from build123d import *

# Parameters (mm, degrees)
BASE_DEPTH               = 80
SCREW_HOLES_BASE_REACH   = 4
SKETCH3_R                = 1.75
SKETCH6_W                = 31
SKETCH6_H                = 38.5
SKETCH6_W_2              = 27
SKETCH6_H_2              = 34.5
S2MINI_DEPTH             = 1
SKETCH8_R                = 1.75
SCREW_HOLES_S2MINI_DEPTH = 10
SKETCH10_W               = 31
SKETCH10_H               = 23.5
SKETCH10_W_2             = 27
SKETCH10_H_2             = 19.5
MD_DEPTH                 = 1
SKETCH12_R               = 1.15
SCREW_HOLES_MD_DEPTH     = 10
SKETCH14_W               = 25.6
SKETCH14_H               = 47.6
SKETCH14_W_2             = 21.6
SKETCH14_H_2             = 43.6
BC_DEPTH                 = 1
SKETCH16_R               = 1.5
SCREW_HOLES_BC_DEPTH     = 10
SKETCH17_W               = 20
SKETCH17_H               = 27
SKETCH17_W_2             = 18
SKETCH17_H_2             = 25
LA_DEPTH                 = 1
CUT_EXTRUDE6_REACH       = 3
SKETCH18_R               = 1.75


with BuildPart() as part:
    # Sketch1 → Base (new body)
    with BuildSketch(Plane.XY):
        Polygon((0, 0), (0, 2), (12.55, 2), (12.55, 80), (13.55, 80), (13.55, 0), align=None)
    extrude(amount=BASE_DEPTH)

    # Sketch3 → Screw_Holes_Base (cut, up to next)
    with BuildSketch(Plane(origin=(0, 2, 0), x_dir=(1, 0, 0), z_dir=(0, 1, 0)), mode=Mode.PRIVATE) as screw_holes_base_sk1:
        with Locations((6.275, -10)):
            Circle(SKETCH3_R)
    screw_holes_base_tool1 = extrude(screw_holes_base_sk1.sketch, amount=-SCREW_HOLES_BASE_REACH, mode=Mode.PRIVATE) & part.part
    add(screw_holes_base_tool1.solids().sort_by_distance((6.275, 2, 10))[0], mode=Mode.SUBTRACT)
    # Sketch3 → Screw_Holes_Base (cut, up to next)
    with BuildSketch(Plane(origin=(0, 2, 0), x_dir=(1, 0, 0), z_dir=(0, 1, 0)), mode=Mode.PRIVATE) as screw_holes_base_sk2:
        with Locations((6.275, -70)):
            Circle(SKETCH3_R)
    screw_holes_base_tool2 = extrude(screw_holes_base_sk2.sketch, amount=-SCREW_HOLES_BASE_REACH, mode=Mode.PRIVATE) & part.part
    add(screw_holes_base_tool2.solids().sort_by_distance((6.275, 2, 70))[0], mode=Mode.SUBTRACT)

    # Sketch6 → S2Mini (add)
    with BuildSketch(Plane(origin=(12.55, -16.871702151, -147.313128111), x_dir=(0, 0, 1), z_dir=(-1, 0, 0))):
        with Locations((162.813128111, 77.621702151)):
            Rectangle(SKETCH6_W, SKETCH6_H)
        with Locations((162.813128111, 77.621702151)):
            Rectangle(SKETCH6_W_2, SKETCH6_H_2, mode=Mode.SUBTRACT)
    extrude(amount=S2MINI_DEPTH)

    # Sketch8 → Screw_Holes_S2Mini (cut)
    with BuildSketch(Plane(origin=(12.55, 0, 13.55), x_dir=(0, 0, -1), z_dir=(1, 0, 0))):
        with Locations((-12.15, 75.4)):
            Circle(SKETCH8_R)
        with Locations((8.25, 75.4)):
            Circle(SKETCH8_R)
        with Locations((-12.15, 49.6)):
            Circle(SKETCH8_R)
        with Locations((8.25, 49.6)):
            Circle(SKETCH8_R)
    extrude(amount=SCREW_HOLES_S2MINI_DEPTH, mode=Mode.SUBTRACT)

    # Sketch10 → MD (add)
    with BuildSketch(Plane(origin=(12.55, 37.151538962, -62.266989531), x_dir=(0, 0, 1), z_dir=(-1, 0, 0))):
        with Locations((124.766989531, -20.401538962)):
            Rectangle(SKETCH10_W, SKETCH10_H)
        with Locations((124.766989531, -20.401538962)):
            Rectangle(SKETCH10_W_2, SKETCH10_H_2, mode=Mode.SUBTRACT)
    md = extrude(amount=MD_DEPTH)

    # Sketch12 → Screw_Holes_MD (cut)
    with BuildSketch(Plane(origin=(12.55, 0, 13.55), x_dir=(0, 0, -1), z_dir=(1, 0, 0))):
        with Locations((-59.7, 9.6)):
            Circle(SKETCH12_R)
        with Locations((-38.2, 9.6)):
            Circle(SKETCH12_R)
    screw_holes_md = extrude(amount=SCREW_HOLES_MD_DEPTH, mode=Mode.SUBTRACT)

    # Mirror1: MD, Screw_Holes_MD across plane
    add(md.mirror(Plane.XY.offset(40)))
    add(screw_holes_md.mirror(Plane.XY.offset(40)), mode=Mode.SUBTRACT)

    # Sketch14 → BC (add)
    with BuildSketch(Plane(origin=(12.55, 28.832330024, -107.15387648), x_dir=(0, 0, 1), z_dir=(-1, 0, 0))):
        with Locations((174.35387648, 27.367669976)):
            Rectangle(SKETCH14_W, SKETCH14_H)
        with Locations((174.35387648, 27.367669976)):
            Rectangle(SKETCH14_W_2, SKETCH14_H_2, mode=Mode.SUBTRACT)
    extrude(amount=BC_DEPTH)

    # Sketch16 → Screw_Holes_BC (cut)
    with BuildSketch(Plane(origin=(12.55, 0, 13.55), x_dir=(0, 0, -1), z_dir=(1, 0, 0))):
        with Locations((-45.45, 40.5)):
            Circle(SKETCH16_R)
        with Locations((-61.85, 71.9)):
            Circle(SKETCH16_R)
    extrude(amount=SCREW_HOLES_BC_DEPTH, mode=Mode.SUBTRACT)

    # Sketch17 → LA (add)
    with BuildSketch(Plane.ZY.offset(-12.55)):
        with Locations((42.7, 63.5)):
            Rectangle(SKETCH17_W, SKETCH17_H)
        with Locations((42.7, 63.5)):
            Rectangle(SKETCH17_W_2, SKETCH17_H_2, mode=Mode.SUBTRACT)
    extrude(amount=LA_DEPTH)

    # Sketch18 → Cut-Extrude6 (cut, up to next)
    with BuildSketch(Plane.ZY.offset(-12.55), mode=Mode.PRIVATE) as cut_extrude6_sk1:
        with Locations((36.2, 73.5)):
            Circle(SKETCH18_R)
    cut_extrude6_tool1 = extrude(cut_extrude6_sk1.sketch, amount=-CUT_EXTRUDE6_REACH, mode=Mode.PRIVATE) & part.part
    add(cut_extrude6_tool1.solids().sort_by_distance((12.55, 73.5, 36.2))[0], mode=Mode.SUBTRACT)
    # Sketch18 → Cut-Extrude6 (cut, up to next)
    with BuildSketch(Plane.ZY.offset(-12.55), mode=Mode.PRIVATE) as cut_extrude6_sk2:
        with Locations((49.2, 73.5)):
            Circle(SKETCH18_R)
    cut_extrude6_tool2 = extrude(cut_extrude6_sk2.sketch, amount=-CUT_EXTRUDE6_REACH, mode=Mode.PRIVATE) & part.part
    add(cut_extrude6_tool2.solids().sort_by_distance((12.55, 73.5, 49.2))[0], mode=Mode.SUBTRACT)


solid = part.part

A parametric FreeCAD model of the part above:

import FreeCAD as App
import Part
import Sketcher
from FreeCAD import Vector
Q = App.Units.Quantity

doc = App.newDocument("Part")
body = doc.addObject("PartDesign::Body", "Body")

sketch1 = body.newObject("Sketcher::SketchObject", "Sketch")
sketch1.AttachmentSupport = (doc.getObject("XY_Plane"), [""])
sketch1.MapMode = "FlatFace"
sketch1.addGeometry(Part.LineSegment(Vector(0, 2, 0), Vector(0, 0, 0)), False)
sketch1.addGeometry(Part.LineSegment(Vector(0, 0, 0), Vector(13.6, 0, 0)), False)
sketch1.addGeometry(Part.LineSegment(Vector(13.6, 0, 0), Vector(13.6, 80, 0)), False)
sketch1.addGeometry(Part.LineSegment(Vector(13.6, 80, 0), Vector(12.6, 80, 0)), False)
sketch1.addGeometry(Part.LineSegment(Vector(12.6, 80, 0), Vector(12.6, 2, 0)), False)
sketch1.addGeometry(Part.LineSegment(Vector(12.6, 2, 0), Vector(0, 2, 0)), False)
sketch1.addConstraint(Sketcher.Constraint("Coincident", 0, 2, 1, 1))
sketch1.addConstraint(Sketcher.Constraint("Coincident", 1, 2, 2, 1))
sketch1.addConstraint(Sketcher.Constraint("Coincident", 2, 2, 3, 1))
sketch1.addConstraint(Sketcher.Constraint("Coincident", 3, 2, 4, 1))
sketch1.addConstraint(Sketcher.Constraint("Coincident", 4, 2, 5, 1))
sketch1.addConstraint(Sketcher.Constraint("Coincident", 5, 2, 0, 1))
sketch1.addConstraint(Sketcher.Constraint("Vertical", 0))
sketch1.addConstraint(Sketcher.Constraint("Horizontal", 1))
sketch1.addConstraint(Sketcher.Constraint("Vertical", 2))
sketch1.addConstraint(Sketcher.Constraint("Horizontal", 3))
sketch1.addConstraint(Sketcher.Constraint("Vertical", 4))
sketch1.addConstraint(Sketcher.Constraint("Horizontal", 5))
sketch1.addConstraint(Sketcher.Constraint("Coincident", 0, 2, -1, 1))
sketch1.addConstraint(Sketcher.Constraint("DistanceX", 3, 2, 3, 1, Q("1 mm")))
sketch1.addConstraint(Sketcher.Constraint("DistanceY", 0, 2, 0, 1, Q("2 mm")))
sketch1.addConstraint(Sketcher.Constraint("DistanceY", 2, 1, 2, 2, Q("80 mm")))
sketch1.addConstraint(Sketcher.Constraint("DistanceX", 1, 1, 1, 2, Q("13.55 mm")))
pad1 = body.newObject("PartDesign::Pad", "Pad")
pad1.Profile = sketch1
pad1.Length = 80

sketch2 = body.newObject("Sketcher::SketchObject", "Sketch001")
sketch2.AttachmentSupport = (doc.getObject("XZ_Plane"), [""])
sketch2.MapMode = "FlatFace"
sketch2.AttachmentOffset = App.Placement(Vector(0, 0, -2), App.Rotation())
sketch2.addGeometry(Part.Circle(Vector(6.3, 10, 0), Vector(0, 0, 1), 1.8), False)
sketch2.addConstraint(Sketcher.Constraint("Diameter", 0, Q("3.5 mm")))
sketch2.addConstraint(Sketcher.Constraint("DistanceY", -1, 1, 0, 3, Q("10 mm")))
sketch2.addConstraint(Sketcher.Constraint("DistanceX", -1, 1, 0, 3, Q("6.275 mm")))
pocket1 = body.newObject("PartDesign::Pocket", "Pocket")
pocket1.Profile = sketch2
pocket1.Type = "UpToFirst"
pocket1.Reversed = True

sketch3 = body.newObject("Sketcher::SketchObject", "Sketch002")
sketch3.AttachmentSupport = (doc.getObject("XZ_Plane"), [""])
sketch3.MapMode = "FlatFace"
sketch3.AttachmentOffset = App.Placement(Vector(0, 0, -2), App.Rotation())
sketch3.addGeometry(Part.Circle(Vector(6.3, 70, 0), Vector(0, 0, 1), 1.8), False)
sketch3.addConstraint(Sketcher.Constraint("Diameter", 0, Q("3.5 mm")))
sketch3.addConstraint(Sketcher.Constraint("DistanceY", -1, 1, 0, 3, Q("70 mm")))
sketch3.addConstraint(Sketcher.Constraint("DistanceX", -1, 1, 0, 3, Q("6.275 mm")))
pocket2 = body.newObject("PartDesign::Pocket", "Pocket001")
pocket2.Profile = sketch3
pocket2.Type = "UpToFirst"
pocket2.Reversed = True

sketch4 = body.newObject("Sketcher::SketchObject", "Sketch003")
sketch4.AttachmentSupport = (doc.getObject("YZ_Plane"), [""])
sketch4.MapMode = "FlatFace"
sketch4.AttachmentOffset = App.Placement(Vector(0, 0, 12.55), App.Rotation())
sketch4.addGeometry(Part.LineSegment(Vector(80, 0, 0), Vector(42, 0, 0)), False)
sketch4.addGeometry(Part.LineSegment(Vector(42, 0, 0), Vector(42, 31, 0)), False)
sketch4.addGeometry(Part.LineSegment(Vector(42, 31, 0), Vector(80, 31, 0)), False)
sketch4.addGeometry(Part.LineSegment(Vector(80, 31, 0), Vector(80, 0, 0)), False)
sketch4.addGeometry(Part.LineSegment(Vector(44, 29, 0), Vector(44, 2, 0)), False)
sketch4.addGeometry(Part.LineSegment(Vector(44, 2, 0), Vector(78, 2, 0)), False)
sketch4.addGeometry(Part.LineSegment(Vector(78, 2, 0), Vector(78, 29, 0)), False)
sketch4.addGeometry(Part.LineSegment(Vector(78, 29, 0), Vector(44, 29, 0)), False)
sketch4.addConstraint(Sketcher.Constraint("Coincident", 0, 2, 1, 1))
sketch4.addConstraint(Sketcher.Constraint("Coincident", 1, 2, 2, 1))
sketch4.addConstraint(Sketcher.Constraint("Coincident", 2, 2, 3, 1))
sketch4.addConstraint(Sketcher.Constraint("Coincident", 3, 2, 0, 1))
sketch4.addConstraint(Sketcher.Constraint("Coincident", 4, 2, 5, 1))
sketch4.addConstraint(Sketcher.Constraint("Coincident", 5, 2, 6, 1))
sketch4.addConstraint(Sketcher.Constraint("Coincident", 6, 2, 7, 1))
sketch4.addConstraint(Sketcher.Constraint("Coincident", 7, 2, 4, 1))
sketch4.addConstraint(Sketcher.Constraint("Horizontal", 0))
sketch4.addConstraint(Sketcher.Constraint("Vertical", 1))
sketch4.addConstraint(Sketcher.Constraint("Horizontal", 2))
sketch4.addConstraint(Sketcher.Constraint("Vertical", 3))
sketch4.addConstraint(Sketcher.Constraint("Vertical", 4))
sketch4.addConstraint(Sketcher.Constraint("Horizontal", 5))
sketch4.addConstraint(Sketcher.Constraint("Vertical", 6))
sketch4.addConstraint(Sketcher.Constraint("Horizontal", 7))
sketch4.addConstraint(Sketcher.Constraint("PointOnObject", 0, 2, -1))
sketch4.addConstraint(Sketcher.Constraint("DistanceY", 1, 1, 1, 2, Q("31 mm")))
sketch4.addConstraint(Sketcher.Constraint("DistanceY", 4, 2, 4, 1, Q("27 mm")))
sketch4.addConstraint(Sketcher.Constraint("DistanceX", 0, 2, 0, 1, Q("38.5 mm")))
sketch4.addConstraint(Sketcher.Constraint("DistanceX", 5, 1, 5, 2, Q("34.5 mm")))
sketch4.addConstraint(Sketcher.Constraint("DistanceX", -1, 1, 2, 2, Q("80 mm")))
sketch4.addConstraint(Sketcher.Constraint("DistanceY", -1, 1, 4, 2, Q("2 mm")))
sketch4.addConstraint(Sketcher.Constraint("DistanceX", -1, 1, 5, 2, Q("78 mm")))
pad2 = body.newObject("PartDesign::Pad", "Pad001")
pad2.Profile = sketch4
pad2.Length = 1
pad2.Reversed = True

sketch5 = body.newObject("Sketcher::SketchObject", "Sketch004")
sketch5.AttachmentSupport = (doc.getObject("YZ_Plane"), [""])
sketch5.MapMode = "FlatFace"
sketch5.AttachmentOffset = App.Placement(Vector(0, 0, 12.55), App.Rotation())
sketch5.addGeometry(Part.Circle(Vector(75.4, 25.7, 0), Vector(0, 0, 1), 1.8), False)
sketch5.addGeometry(Part.Circle(Vector(75.4, 5.3, 0), Vector(0, 0, 1), 1.8), False)
sketch5.addGeometry(Part.Circle(Vector(49.6, 25.7, 0), Vector(0, 0, 1), 1.8), False)
sketch5.addGeometry(Part.Circle(Vector(49.6, 5.3, 0), Vector(0, 0, 1), 1.8), False)
sketch5.addConstraint(Sketcher.Constraint("Equal", 0, 1))
sketch5.addConstraint(Sketcher.Constraint("Equal", 1, 2))
sketch5.addConstraint(Sketcher.Constraint("Equal", 2, 3))
sketch5.addConstraint(Sketcher.Constraint("Horizontal", 0, 3, 2, 3))
sketch5.addConstraint(Sketcher.Constraint("Horizontal", 1, 3, 3, 3))
sketch5.addConstraint(Sketcher.Constraint("Vertical", 0, 3, 1, 3))
sketch5.addConstraint(Sketcher.Constraint("Vertical", 2, 3, 3, 3))
sketch5.addConstraint(Sketcher.Constraint("Diameter", 0, Q("3.5 mm")))
sketch5.addConstraint(Sketcher.Constraint("DistanceX", -1, 1, 0, 3, Q("75.4 mm")))
sketch5.addConstraint(Sketcher.Constraint("DistanceY", -1, 1, 0, 3, Q("25.7 mm")))
sketch5.addConstraint(Sketcher.Constraint("DistanceY", -1, 1, 1, 3, Q("5.3 mm")))
sketch5.addConstraint(Sketcher.Constraint("DistanceX", -1, 1, 2, 3, Q("49.6 mm")))
pocket3 = body.newObject("PartDesign::Pocket", "Pocket002")
pocket3.Profile = sketch5
pocket3.Length = 10
pocket3.Reversed = True

sketch6 = body.newObject("Sketcher::SketchObject", "Sketch005")
sketch6.AttachmentSupport = (doc.getObject("YZ_Plane"), [""])
sketch6.MapMode = "FlatFace"
sketch6.AttachmentOffset = App.Placement(Vector(0, 0, 12.55), App.Rotation())
sketch6.addGeometry(Part.LineSegment(Vector(28, 47, 0), Vector(5, 47, 0)), False)
sketch6.addGeometry(Part.LineSegment(Vector(5, 47, 0), Vector(5, 78, 0)), False)
sketch6.addGeometry(Part.LineSegment(Vector(5, 78, 0), Vector(28, 78, 0)), False)
sketch6.addGeometry(Part.LineSegment(Vector(28, 78, 0), Vector(28, 47, 0)), False)
sketch6.addGeometry(Part.LineSegment(Vector(7, 76, 0), Vector(7, 49, 0)), False)
sketch6.addGeometry(Part.LineSegment(Vector(7, 49, 0), Vector(26, 49, 0)), False)
sketch6.addGeometry(Part.LineSegment(Vector(26, 49, 0), Vector(26, 76, 0)), False)
sketch6.addGeometry(Part.LineSegment(Vector(26, 76, 0), Vector(7, 76, 0)), False)
sketch6.addConstraint(Sketcher.Constraint("Coincident", 0, 2, 1, 1))
sketch6.addConstraint(Sketcher.Constraint("Coincident", 1, 2, 2, 1))
sketch6.addConstraint(Sketcher.Constraint("Coincident", 2, 2, 3, 1))
sketch6.addConstraint(Sketcher.Constraint("Coincident", 3, 2, 0, 1))
sketch6.addConstraint(Sketcher.Constraint("Coincident", 4, 2, 5, 1))
sketch6.addConstraint(Sketcher.Constraint("Coincident", 5, 2, 6, 1))
sketch6.addConstraint(Sketcher.Constraint("Coincident", 6, 2, 7, 1))
sketch6.addConstraint(Sketcher.Constraint("Coincident", 7, 2, 4, 1))
sketch6.addConstraint(Sketcher.Constraint("Horizontal", 0))
sketch6.addConstraint(Sketcher.Constraint("Vertical", 1))
sketch6.addConstraint(Sketcher.Constraint("Horizontal", 2))
sketch6.addConstraint(Sketcher.Constraint("Vertical", 3))
sketch6.addConstraint(Sketcher.Constraint("Vertical", 4))
sketch6.addConstraint(Sketcher.Constraint("Horizontal", 5))
sketch6.addConstraint(Sketcher.Constraint("Vertical", 6))
sketch6.addConstraint(Sketcher.Constraint("Horizontal", 7))
sketch6.addConstraint(Sketcher.Constraint("DistanceY", 1, 1, 1, 2, Q("31 mm")))
sketch6.addConstraint(Sketcher.Constraint("DistanceY", 4, 2, 4, 1, Q("27 mm")))
sketch6.addConstraint(Sketcher.Constraint("DistanceX", 0, 2, 0, 1, Q("23.5 mm")))
sketch6.addConstraint(Sketcher.Constraint("DistanceX", 5, 1, 5, 2, Q("19.5 mm")))
sketch6.addConstraint(Sketcher.Constraint("DistanceX", -1, 1, 0, 2, Q("5 mm")))
sketch6.addConstraint(Sketcher.Constraint("DistanceY", -1, 1, 0, 2, Q("47 mm")))
sketch6.addConstraint(Sketcher.Constraint("DistanceX", -1, 1, 4, 2, Q("7 mm")))
sketch6.addConstraint(Sketcher.Constraint("DistanceY", -1, 1, 4, 2, Q("49 mm")))
pad3 = body.newObject("PartDesign::Pad", "Pad002")
pad3.Profile = sketch6
pad3.Length = 1
pad3.Reversed = True

sketch7 = body.newObject("Sketcher::SketchObject", "Sketch006")
sketch7.AttachmentSupport = (doc.getObject("YZ_Plane"), [""])
sketch7.MapMode = "FlatFace"
sketch7.AttachmentOffset = App.Placement(Vector(0, 0, 12.55), App.Rotation())
sketch7.addGeometry(Part.Circle(Vector(9.6, 73.2, 0), Vector(0, 0, 1), 1.1), False)
sketch7.addGeometry(Part.Circle(Vector(9.6, 51.8, 0), Vector(0, 0, 1), 1.1), False)
sketch7.addConstraint(Sketcher.Constraint("Equal", 0, 1))
sketch7.addConstraint(Sketcher.Constraint("Vertical", 0, 3, 1, 3))
sketch7.addConstraint(Sketcher.Constraint("Diameter", 0, Q("2.3 mm")))
sketch7.addConstraint(Sketcher.Constraint("DistanceX", -1, 1, 0, 3, Q("9.6 mm")))
sketch7.addConstraint(Sketcher.Constraint("DistanceY", 1, 3, 0, 3, Q("21.5 mm")))
sketch7.addConstraint(Sketcher.Constraint("DistanceY", -1, 1, 0, 3, Q("73.25 mm")))
pocket4 = body.newObject("PartDesign::Pocket", "Pocket003")
pocket4.Profile = sketch7
pocket4.Length = 10
pocket4.Reversed = True
doc.recompute()

datumplane = body.newObject("PartDesign::Plane", "DatumPlane")
datumplane.AttachmentSupport = (doc.getObject("XY_Plane"), [""])
datumplane.MapMode = "FlatFace"
datumplane.AttachmentOffset = App.Placement(Vector(0, 0, 40), App.Rotation())
mirrored = body.newObject("PartDesign::Mirrored", "Mirrored")
mirrored.Originals = [pad3, pocket4]
mirrored.MirrorPlane = (datumplane, [""])
body.Tip = mirrored

sketch8 = body.newObject("Sketcher::SketchObject", "Sketch007")
sketch8.AttachmentSupport = (doc.getObject("YZ_Plane"), [""])
sketch8.MapMode = "FlatFace"
sketch8.AttachmentOffset = App.Placement(Vector(0, 0, 12.55), App.Rotation())
sketch8.addGeometry(Part.LineSegment(Vector(80, 54, 0), Vector(32, 54, 0)), False)
sketch8.addGeometry(Part.LineSegment(Vector(32, 54, 0), Vector(32, 80, 0)), False)
sketch8.addGeometry(Part.LineSegment(Vector(32, 80, 0), Vector(80, 80, 0)), False)
sketch8.addGeometry(Part.LineSegment(Vector(80, 80, 0), Vector(80, 54, 0)), False)
sketch8.addGeometry(Part.LineSegment(Vector(34, 78, 0), Vector(34, 56, 0)), False)
sketch8.addGeometry(Part.LineSegment(Vector(34, 56, 0), Vector(78, 56, 0)), False)
sketch8.addGeometry(Part.LineSegment(Vector(78, 56, 0), Vector(78, 78, 0)), False)
sketch8.addGeometry(Part.LineSegment(Vector(78, 78, 0), Vector(34, 78, 0)), False)
sketch8.addConstraint(Sketcher.Constraint("Coincident", 0, 2, 1, 1))
sketch8.addConstraint(Sketcher.Constraint("Coincident", 1, 2, 2, 1))
sketch8.addConstraint(Sketcher.Constraint("Coincident", 2, 2, 3, 1))
sketch8.addConstraint(Sketcher.Constraint("Coincident", 3, 2, 0, 1))
sketch8.addConstraint(Sketcher.Constraint("Coincident", 4, 2, 5, 1))
sketch8.addConstraint(Sketcher.Constraint("Coincident", 5, 2, 6, 1))
sketch8.addConstraint(Sketcher.Constraint("Coincident", 6, 2, 7, 1))
sketch8.addConstraint(Sketcher.Constraint("Coincident", 7, 2, 4, 1))
sketch8.addConstraint(Sketcher.Constraint("Horizontal", 0))
sketch8.addConstraint(Sketcher.Constraint("Vertical", 1))
sketch8.addConstraint(Sketcher.Constraint("Horizontal", 2))
sketch8.addConstraint(Sketcher.Constraint("Vertical", 3))
sketch8.addConstraint(Sketcher.Constraint("Vertical", 4))
sketch8.addConstraint(Sketcher.Constraint("Horizontal", 5))
sketch8.addConstraint(Sketcher.Constraint("Vertical", 6))
sketch8.addConstraint(Sketcher.Constraint("Horizontal", 7))
sketch8.addConstraint(Sketcher.Constraint("DistanceX", 0, 2, 0, 1, Q("47.6 mm")))
sketch8.addConstraint(Sketcher.Constraint("DistanceX", 5, 1, 5, 2, Q("43.6 mm")))
sketch8.addConstraint(Sketcher.Constraint("DistanceY", 1, 1, 1, 2, Q("25.6 mm")))
sketch8.addConstraint(Sketcher.Constraint("DistanceY", 4, 2, 4, 1, Q("21.6 mm")))
sketch8.addConstraint(Sketcher.Constraint("DistanceY", -1, 1, 1, 2, Q("80 mm")))
sketch8.addConstraint(Sketcher.Constraint("DistanceX", -1, 1, 2, 2, Q("80 mm")))
sketch8.addConstraint(Sketcher.Constraint("DistanceX", -1, 1, 5, 2, Q("78 mm")))
sketch8.addConstraint(Sketcher.Constraint("DistanceY", -1, 1, 6, 2, Q("78 mm")))
pad4 = body.newObject("PartDesign::Pad", "Pad003")
pad4.Profile = sketch8
pad4.Length = 1
pad4.Reversed = True

sketch9 = body.newObject("Sketcher::SketchObject", "Sketch008")
sketch9.AttachmentSupport = (doc.getObject("YZ_Plane"), [""])
sketch9.MapMode = "FlatFace"
sketch9.AttachmentOffset = App.Placement(Vector(0, 0, 12.55), App.Rotation())
sketch9.addGeometry(Part.Circle(Vector(40.5, 59, 0), Vector(0, 0, 1), 1.5), False)
sketch9.addGeometry(Part.Circle(Vector(71.9, 75.4, 0), Vector(0, 0, 1), 1.5), False)
sketch9.addConstraint(Sketcher.Constraint("Equal", 0, 1))
sketch9.addConstraint(Sketcher.Constraint("Diameter", 0, Q("3 mm")))
sketch9.addConstraint(Sketcher.Constraint("DistanceY", -1, 1, 0, 3, Q("59 mm")))
sketch9.addConstraint(Sketcher.Constraint("DistanceX", -1, 1, 0, 3, Q("40.5 mm")))
sketch9.addConstraint(Sketcher.Constraint("DistanceX", -1, 1, 1, 3, Q("71.9 mm")))
sketch9.addConstraint(Sketcher.Constraint("DistanceY", -1, 1, 1, 3, Q("75.4 mm")))
pocket5 = body.newObject("PartDesign::Pocket", "Pocket004")
pocket5.Profile = sketch9
pocket5.Length = 10
pocket5.Reversed = True

sketch10 = body.newObject("Sketcher::SketchObject", "Sketch009")
sketch10.AttachmentSupport = (doc.getObject("YZ_Plane"), [""])
sketch10.MapMode = "FlatFace"
sketch10.AttachmentOffset = App.Placement(Vector(0, 0, 12.55), App.Rotation())
sketch10.addGeometry(Part.LineSegment(Vector(77, 33, 0), Vector(50, 33, 0)), False)
sketch10.addGeometry(Part.LineSegment(Vector(50, 33, 0), Vector(50, 53, 0)), False)
sketch10.addGeometry(Part.LineSegment(Vector(50, 53, 0), Vector(77, 53, 0)), False)
sketch10.addGeometry(Part.LineSegment(Vector(77, 53, 0), Vector(77, 33, 0)), False)
sketch10.addGeometry(Part.LineSegment(Vector(51, 52, 0), Vector(51, 34, 0)), False)
sketch10.addGeometry(Part.LineSegment(Vector(51, 34, 0), Vector(76, 34, 0)), False)
sketch10.addGeometry(Part.LineSegment(Vector(76, 34, 0), Vector(76, 52, 0)), False)
sketch10.addGeometry(Part.LineSegment(Vector(76, 52, 0), Vector(51, 52, 0)), False)
sketch10.addConstraint(Sketcher.Constraint("Coincident", 0, 2, 1, 1))
sketch10.addConstraint(Sketcher.Constraint("Coincident", 1, 2, 2, 1))
sketch10.addConstraint(Sketcher.Constraint("Coincident", 2, 2, 3, 1))
sketch10.addConstraint(Sketcher.Constraint("Coincident", 3, 2, 0, 1))
sketch10.addConstraint(Sketcher.Constraint("Coincident", 4, 2, 5, 1))
sketch10.addConstraint(Sketcher.Constraint("Coincident", 5, 2, 6, 1))
sketch10.addConstraint(Sketcher.Constraint("Coincident", 6, 2, 7, 1))
sketch10.addConstraint(Sketcher.Constraint("Coincident", 7, 2, 4, 1))
sketch10.addConstraint(Sketcher.Constraint("Horizontal", 0))
sketch10.addConstraint(Sketcher.Constraint("Vertical", 1))
sketch10.addConstraint(Sketcher.Constraint("Horizontal", 2))
sketch10.addConstraint(Sketcher.Constraint("Vertical", 3))
sketch10.addConstraint(Sketcher.Constraint("Vertical", 4))
sketch10.addConstraint(Sketcher.Constraint("Horizontal", 5))
sketch10.addConstraint(Sketcher.Constraint("Vertical", 6))
sketch10.addConstraint(Sketcher.Constraint("Horizontal", 7))
sketch10.addConstraint(Sketcher.Constraint("DistanceX", 0, 2, 0, 1, Q("27 mm")))
sketch10.addConstraint(Sketcher.Constraint("DistanceX", 5, 1, 5, 2, Q("25 mm")))
sketch10.addConstraint(Sketcher.Constraint("DistanceY", 1, 1, 1, 2, Q("20 mm")))
sketch10.addConstraint(Sketcher.Constraint("DistanceY", 4, 2, 4, 1, Q("18 mm")))
sketch10.addConstraint(Sketcher.Constraint("DistanceX", -1, 1, 0, 2, Q("50 mm")))
sketch10.addConstraint(Sketcher.Constraint("DistanceX", -1, 1, 4, 2, Q("51 mm")))
sketch10.addConstraint(Sketcher.Constraint("DistanceY", 0, 2, 4, 2, Q("1 mm")))
sketch10.addConstraint(Sketcher.Constraint("DistanceY", -1, 1, 0, 2, Q("32.7 mm")))
pad5 = body.newObject("PartDesign::Pad", "Pad004")
pad5.Profile = sketch10
pad5.Length = 1
pad5.Reversed = True

sketch11 = body.newObject("Sketcher::SketchObject", "Sketch010")
sketch11.AttachmentSupport = (doc.getObject("YZ_Plane"), [""])
sketch11.MapMode = "FlatFace"
sketch11.AttachmentOffset = App.Placement(Vector(0, 0, 12.55), App.Rotation())
sketch11.addGeometry(Part.Circle(Vector(73.5, 36.2, 0), Vector(0, 0, 1), 1.8), False)
sketch11.addConstraint(Sketcher.Constraint("Diameter", 0, Q("3.5 mm")))
sketch11.addConstraint(Sketcher.Constraint("DistanceX", -1, 1, 0, 3, Q("73.5 mm")))
sketch11.addConstraint(Sketcher.Constraint("DistanceY", -1, 1, 0, 3, Q("36.2 mm")))
pocket6 = body.newObject("PartDesign::Pocket", "Pocket005")
pocket6.Profile = sketch11
pocket6.Type = "UpToFirst"
pocket6.Reversed = True

sketch12 = body.newObject("Sketcher::SketchObject", "Sketch011")
sketch12.AttachmentSupport = (doc.getObject("YZ_Plane"), [""])
sketch12.MapMode = "FlatFace"
sketch12.AttachmentOffset = App.Placement(Vector(0, 0, 12.55), App.Rotation())
sketch12.addGeometry(Part.Circle(Vector(73.5, 49.2, 0), Vector(0, 0, 1), 1.8), False)
sketch12.addConstraint(Sketcher.Constraint("Diameter", 0, Q("3.5 mm")))
sketch12.addConstraint(Sketcher.Constraint("DistanceX", -1, 1, 0, 3, Q("73.5 mm")))
sketch12.addConstraint(Sketcher.Constraint("DistanceY", -1, 1, 0, 3, Q("49.2 mm")))
pocket7 = body.newObject("PartDesign::Pocket", "Pocket006")
pocket7.Profile = sketch12
pocket7.Type = "UpToFirst"
pocket7.Reversed = True

doc.recompute()
